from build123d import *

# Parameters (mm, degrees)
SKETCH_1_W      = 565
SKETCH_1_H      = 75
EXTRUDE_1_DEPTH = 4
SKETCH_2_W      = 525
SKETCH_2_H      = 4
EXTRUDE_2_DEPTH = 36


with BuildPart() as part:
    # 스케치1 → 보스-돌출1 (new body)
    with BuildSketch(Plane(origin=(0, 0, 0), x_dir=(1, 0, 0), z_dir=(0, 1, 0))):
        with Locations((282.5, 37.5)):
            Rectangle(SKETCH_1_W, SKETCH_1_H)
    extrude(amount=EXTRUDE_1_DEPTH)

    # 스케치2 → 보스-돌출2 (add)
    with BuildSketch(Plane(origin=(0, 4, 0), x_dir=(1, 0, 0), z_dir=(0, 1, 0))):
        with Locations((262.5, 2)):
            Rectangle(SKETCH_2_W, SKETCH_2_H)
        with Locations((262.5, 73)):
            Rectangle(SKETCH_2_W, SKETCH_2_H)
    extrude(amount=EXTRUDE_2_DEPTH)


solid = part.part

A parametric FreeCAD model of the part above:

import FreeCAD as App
import Part
import Sketcher
Q = App.Units.Quantity


def add_polygon(sketch, points):
    """Adds a closed chain of lines whose ends are joined by coincident constraints."""
    first, n = sketch.GeometryCount, len(points)
    for a, b in zip(points, points[1:] + points[:1]):
        sketch.addGeometry(Part.LineSegment(App.Vector(*a, 0), App.Vector(*b, 0)), False)
    for i in range(n):
        sketch.addConstraint(Sketcher.Constraint("Coincident", first + i, 2, first + (i + 1) % n, 1))

doc = App.newDocument("Part")
params = doc.addObject("Spreadsheet::Sheet", "Params")
for row, (alias, value) in enumerate([
    ("sketch1_width", "565 mm"),
    ("sketch1_height", "75 mm"),
    ("pad1_length", "4 mm"),
    ("sketch2_width", "525 mm"),
    ("sketch2_height", "4 mm"),
    ("pad2_length", "36 mm"),
], start=1):
    params.set(f"A{row}", alias)
    params.set(f"B{row}", "=" + value)
    params.setAlias(f"B{row}", alias)

body = doc.addObject("PartDesign::Body", "Body")

sketch1 = body.newObject("Sketcher::SketchObject", "Sketch")
sketch1.AttachmentSupport = (doc.getObject("XZ_Plane"), [""])
sketch1.MapMode = "FlatFace"
add_polygon(sketch1, [(0, -75), (0, 0), (565, 0), (565, -75)])
sketch1.addConstraint([
    Sketcher.Constraint("Vertical", 0),
    Sketcher.Constraint("Horizontal", 1),
    Sketcher.Constraint("Vertical", 2),
    Sketcher.Constraint("Horizontal", 3),
    Sketcher.Constraint("Coincident", 0, 2, -1, 1),
    Sketcher.Constraint("DistanceX", 1, 1, 1, 2, Q("565 mm")),
    Sketcher.Constraint("DistanceY", 0, 1, 0, 2, Q("75 mm")),
])
sketch1.setExpression("Constraints[9]", "Params.sketch1_width")
sketch1.setExpression("Constraints[10]", "Params.sketch1_height")
pad1 = body.newObject("PartDesign::Pad", "Pad")
pad1.Profile = sketch1
pad1.setExpression("Length", "Params.pad1_length")
pad1.Reversed = True

sketch2 = body.newObject("Sketcher::SketchObject", "Sketch001")
sketch2.AttachmentSupport = (doc.getObject("XZ_Plane"), [""])
sketch2.MapMode = "FlatFace"
sketch2.AttachmentOffset = App.Placement(App.Vector(0, 0, -4), App.Rotation())
add_polygon(sketch2, [(0, -4), (0, 0), (525, 0), (525, -4)])
add_polygon(sketch2, [(0, -75), (0, -71), (525, -71), (525, -75)])
sketch2.addConstraint([
    Sketcher.Constraint("Vertical", 0),
    Sketcher.Constraint("Horizontal", 1),
    Sketcher.Constraint("Vertical", 2),
    Sketcher.Constraint("Horizontal", 3),
    Sketcher.Constraint("Vertical", 4),
    Sketcher.Constraint("Horizontal", 5),
    Sketcher.Constraint("Vertical", 6),
    Sketcher.Constraint("Horizontal", 7),
    Sketcher.Constraint("Coincident", 0, 2, -1, 1),
    Sketcher.Constraint("PointOnObject", 4, 2, -2),
    Sketcher.Constraint("Vertical", 2, 2, 5, 2),
    Sketcher.Constraint("Equal", 2, 4),
    Sketcher.Constraint("DistanceX", 1, 1, 1, 2, Q("525 mm")),
    Sketcher.Constraint("DistanceY", 0, 1, 0, 2, Q("4 mm")),
    Sketcher.Constraint("DistanceY", 4, 2, -1, 1, Q("71 mm")),
])
sketch2.setExpression("Constraints[20]", "Params.sketch2_width")
sketch2.setExpression("Constraints[21]", "Params.sketch2_height")
pad2 = body.newObject("PartDesign::Pad", "Pad001")
pad2.Profile = sketch2
pad2.setExpression("Length", "Params.pad2_length")
pad2.Reversed = True

doc.recompute()
